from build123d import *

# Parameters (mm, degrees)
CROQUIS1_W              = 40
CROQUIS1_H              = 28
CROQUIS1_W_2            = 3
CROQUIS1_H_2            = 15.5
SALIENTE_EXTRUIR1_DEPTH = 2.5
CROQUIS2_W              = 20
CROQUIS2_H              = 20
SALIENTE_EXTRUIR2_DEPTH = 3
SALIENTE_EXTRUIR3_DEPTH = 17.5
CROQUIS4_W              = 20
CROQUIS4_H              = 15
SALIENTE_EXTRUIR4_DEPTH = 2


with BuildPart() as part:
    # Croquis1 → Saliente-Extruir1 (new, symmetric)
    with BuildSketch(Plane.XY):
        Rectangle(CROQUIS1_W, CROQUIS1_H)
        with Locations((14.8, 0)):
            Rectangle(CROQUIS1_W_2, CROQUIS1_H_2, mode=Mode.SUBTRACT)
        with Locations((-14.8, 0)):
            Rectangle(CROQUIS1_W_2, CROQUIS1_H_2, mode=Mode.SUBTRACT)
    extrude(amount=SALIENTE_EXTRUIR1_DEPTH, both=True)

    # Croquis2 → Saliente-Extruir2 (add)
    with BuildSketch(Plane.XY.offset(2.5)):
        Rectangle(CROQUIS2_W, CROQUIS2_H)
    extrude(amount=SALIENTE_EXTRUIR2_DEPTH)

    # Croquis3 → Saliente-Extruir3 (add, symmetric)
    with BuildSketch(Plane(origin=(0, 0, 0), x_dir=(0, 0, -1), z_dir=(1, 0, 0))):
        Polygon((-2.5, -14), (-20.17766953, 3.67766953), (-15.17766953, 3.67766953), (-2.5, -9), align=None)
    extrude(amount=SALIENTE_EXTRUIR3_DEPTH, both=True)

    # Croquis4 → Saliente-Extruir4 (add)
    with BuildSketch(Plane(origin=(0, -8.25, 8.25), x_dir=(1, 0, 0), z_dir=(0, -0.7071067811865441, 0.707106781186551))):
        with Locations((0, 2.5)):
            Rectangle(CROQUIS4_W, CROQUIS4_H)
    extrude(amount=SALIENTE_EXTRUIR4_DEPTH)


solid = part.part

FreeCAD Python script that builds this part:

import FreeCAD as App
import Part
import Sketcher
from FreeCAD import Vector
Q = App.Units.Quantity

doc = App.newDocument("Part")
body = doc.addObject("PartDesign::Body", "Body")

# Sketch on XY plane
sketch1 = body.newObject("Sketcher::SketchObject", "Sketch")
sketch1.AttachmentSupport = (doc.getObject("XY_Plane"), [""])
sketch1.MapMode = "FlatFace"
sketch1.addGeometry([
    Part.LineSegment(Vector(-20, 14, 0), Vector(-20, -14, 0)),  # 0
    Part.LineSegment(Vector(-20, -14, 0), Vector(20, -14, 0)),  # 1
    Part.LineSegment(Vector(20, -14, 0), Vector(20, 14, 0)),  # 2
    Part.LineSegment(Vector(20, 14, 0), Vector(-20, 14, 0)),  # 3
    Part.LineSegment(Vector(-13.3, -7.75, 0), Vector(-16.3, -7.75, 0)),  # 4
    Part.LineSegment(Vector(-16.3, -7.75, 0), Vector(-16.3, 7.75, 0)),  # 5
    Part.LineSegment(Vector(-16.3, 7.75, 0), Vector(-13.3, 7.75, 0)),  # 6
    Part.LineSegment(Vector(-13.3, 7.75, 0), Vector(-13.3, -7.75, 0)),  # 7
    Part.LineSegment(Vector(16.3, -7.75, 0), Vector(13.3, -7.75, 0)),  # 8
    Part.LineSegment(Vector(13.3, -7.75, 0), Vector(13.3, 7.75, 0)),  # 9
    Part.LineSegment(Vector(13.3, 7.75, 0), Vector(16.3, 7.75, 0)),  # 10
    Part.LineSegment(Vector(16.3, 7.75, 0), Vector(16.3, -7.75, 0)),  # 11
], False)
sketch1.addConstraint([
    Sketcher.Constraint("Coincident", 0, 2, 1, 1),
    Sketcher.Constraint("Coincident", 1, 2, 2, 1),
    Sketcher.Constraint("Coincident", 2, 2, 3, 1),
    Sketcher.Constraint("Coincident", 3, 2, 0, 1),
    Sketcher.Constraint("Coincident", 4, 2, 5, 1),
    Sketcher.Constraint("Coincident", 5, 2, 6, 1),
    Sketcher.Constraint("Coincident", 6, 2, 7, 1),
    Sketcher.Constraint("Coincident", 7, 2, 4, 1),
    Sketcher.Constraint("Coincident", 8, 2, 9, 1),
    Sketcher.Constraint("Coincident", 9, 2, 10, 1),
    Sketcher.Constraint("Coincident", 10, 2, 11, 1),
    Sketcher.Constraint("Coincident", 11, 2, 8, 1),
    Sketcher.Constraint("Vertical", 0),
    Sketcher.Constraint("Horizontal", 1),
    Sketcher.Constraint("Vertical", 2),
    Sketcher.Constraint("Horizontal", 3),
    Sketcher.Constraint("Horizontal", 4),
    Sketcher.Constraint("Vertical", 5),
    Sketcher.Constraint("Horizontal", 6),
    Sketcher.Constraint("Vertical", 7),
    Sketcher.Constraint("Horizontal", 8),
    Sketcher.Constraint("Vertical", 9),
    Sketcher.Constraint("Horizontal", 10),
    Sketcher.Constraint("Vertical", 11),
    Sketcher.Constraint("Symmetric", 0, 2, 2, 2, -1, 1),
    Sketcher.Constraint("Symmetric", 6, 2, 8, 2, -1, 1),
    Sketcher.Constraint("Symmetric", 4, 2, 10, 2, -1, 1),
    Sketcher.Constraint("Horizontal", 7, 2, 8, 2),
    Sketcher.Constraint("DistanceX", 1, 1, 1, 2, Q("40 mm")),
    Sketcher.Constraint("DistanceX", 4, 2, 4, 1, Q("3 mm")),
    Sketcher.Constraint("DistanceY", 0, 2, 0, 1, Q("28 mm")),
    Sketcher.Constraint("DistanceY", 5, 1, 5, 2, Q("15.5 mm")),
    Sketcher.Constraint("DistanceX", 4, 2, -1, 1, Q("16.3 mm")),
])
pad1 = body.newObject("PartDesign::Pad", "Pad")
pad1.Profile = sketch1
pad1.Length = 5
pad1.Midplane = True

# Sketch on XY plane
sketch2 = body.newObject("Sketcher::SketchObject", "Sketch001")
sketch2.AttachmentSupport = (doc.getObject("XY_Plane"), [""])
sketch2.MapMode = "FlatFace"
sketch2.AttachmentOffset = App.Placement(Vector(0, 0, 2.5), App.Rotation())
sketch2.addGeometry([
    Part.LineSegment(Vector(-10, 10, 0), Vector(-10, -10, 0)),
    Part.LineSegment(Vector(-10, -10, 0), Vector(10, -10, 0)),
    Part.LineSegment(Vector(10, -10, 0), Vector(10, 10, 0)),
    Part.LineSegment(Vector(10, 10, 0), Vector(-10, 10, 0)),
], False)
sketch2.addConstraint([
    Sketcher.Constraint("Coincident", 0, 2, 1, 1),
    Sketcher.Constraint("Coincident", 1, 2, 2, 1),
    Sketcher.Constraint("Coincident", 2, 2, 3, 1),
    Sketcher.Constraint("Coincident", 3, 2, 0, 1),
    Sketcher.Constraint("Vertical", 0),
    Sketcher.Constraint("Horizontal", 1),
    Sketcher.Constraint("Vertical", 2),
    Sketcher.Constraint("Horizontal", 3),
    Sketcher.Constraint("Symmetric", 0, 2, 2, 2, -1, 1),
    Sketcher.Constraint("Equal", 3, 0),
    Sketcher.Constraint("DistanceX", 1, 1, 1, 2, Q("20 mm")),
])
pad2 = body.newObject("PartDesign::Pad", "Pad001")
pad2.Profile = sketch2
pad2.Length = 3

# Sketch on YZ plane
sketch3 = body.newObject("Sketcher::SketchObject", "Sketch002")
sketch3.AttachmentSupport = (doc.getObject("YZ_Plane"), [""])
sketch3.MapMode = "FlatFace"
sketch3.addGeometry([
    Part.LineSegment(Vector(3.67767, 20.17767, 0), Vector(-14, 2.5, 0)),
    Part.LineSegment(Vector(-14, 2.5, 0), Vector(-9, 2.5, 0)),
    Part.LineSegment(Vector(-9, 2.5, 0), Vector(3.67767, 15.17767, 0)),
    Part.LineSegment(Vector(3.67767, 15.17767, 0), Vector(3.67767, 20.17767, 0)),
], False)
sketch3.addConstraint([
    Sketcher.Constraint("Coincident", 0, 2, 1, 1),
    Sketcher.Constraint("Coincident", 1, 2, 2, 1),
    Sketcher.Constraint("Coincident", 2, 2, 3, 1),
    Sketcher.Constraint("Coincident", 3, 2, 0, 1),
    Sketcher.Constraint("Horizontal", 1),
    Sketcher.Constraint("Vertical", 3),
    Sketcher.Constraint("Parallel", 0, 2),
    Sketcher.Constraint("Equal", 1, 3),
    Sketcher.Constraint("DistanceX", 1, 1, 1, 2, Q("5 mm")),
    Sketcher.Constraint("Distance", 0, Q("25 mm")),
    Sketcher.Constraint("DistanceX", 0, 2, -1, 1, Q("14 mm")),
    Sketcher.Constraint("DistanceY", -1, 1, 0, 2, Q("2.5 mm")),
])
pad3 = body.newObject("PartDesign::Pad", "Pad002")
pad3.Profile = sketch3
pad3.Length = 35
pad3.Midplane = True

# Sketch on an angled plane
sketch4 = body.newObject("Sketcher::SketchObject", "Sketch003")
sketch4.Placement = App.Placement(Vector(0, -8.25, 8.25), App.Rotation(Vector(1, 0, 0), Vector(0, 0.707106781, 0.707106781), Vector(0, -0.707106781, 0.707106781), "ZXY"))
sketch4.addGeometry([
    Part.LineSegment(Vector(-10, 10, 0), Vector(-10, -5, 0)),
    Part.LineSegment(Vector(-10, -5, 0), Vector(10, -5, 0)),
    Part.LineSegment(Vector(10, -5, 0), Vector(10, 10, 0)),
    Part.LineSegment(Vector(10, 10, 0), Vector(-10, 10, 0)),
], False)
sketch4.addConstraint([
    Sketcher.Constraint("Coincident", 0, 2, 1, 1),
    Sketcher.Constraint("Coincident", 1, 2, 2, 1),
    Sketcher.Constraint("Coincident", 2, 2, 3, 1),
    Sketcher.Constraint("Coincident", 3, 2, 0, 1),
    Sketcher.Constraint("Vertical", 0),
    Sketcher.Constraint("Horizontal", 1),
    Sketcher.Constraint("Vertical", 2),
    Sketcher.Constraint("Horizontal", 3),
    Sketcher.Constraint("DistanceX", 1, 1, 1, 2, Q("20 mm")),
    Sketcher.Constraint("DistanceY", 0, 2, 0, 1, Q("15 mm")),
    Sketcher.Constraint("DistanceX", 0, 2, -1, 1, Q("10 mm")),
    Sketcher.Constraint("DistanceY", 0, 2, -1, 1, Q("5 mm")),
])
pad4 = body.newObject("PartDesign::Pad", "Pad003")
pad4.Profile = sketch4
pad4.Length = 2

doc.recompute()
